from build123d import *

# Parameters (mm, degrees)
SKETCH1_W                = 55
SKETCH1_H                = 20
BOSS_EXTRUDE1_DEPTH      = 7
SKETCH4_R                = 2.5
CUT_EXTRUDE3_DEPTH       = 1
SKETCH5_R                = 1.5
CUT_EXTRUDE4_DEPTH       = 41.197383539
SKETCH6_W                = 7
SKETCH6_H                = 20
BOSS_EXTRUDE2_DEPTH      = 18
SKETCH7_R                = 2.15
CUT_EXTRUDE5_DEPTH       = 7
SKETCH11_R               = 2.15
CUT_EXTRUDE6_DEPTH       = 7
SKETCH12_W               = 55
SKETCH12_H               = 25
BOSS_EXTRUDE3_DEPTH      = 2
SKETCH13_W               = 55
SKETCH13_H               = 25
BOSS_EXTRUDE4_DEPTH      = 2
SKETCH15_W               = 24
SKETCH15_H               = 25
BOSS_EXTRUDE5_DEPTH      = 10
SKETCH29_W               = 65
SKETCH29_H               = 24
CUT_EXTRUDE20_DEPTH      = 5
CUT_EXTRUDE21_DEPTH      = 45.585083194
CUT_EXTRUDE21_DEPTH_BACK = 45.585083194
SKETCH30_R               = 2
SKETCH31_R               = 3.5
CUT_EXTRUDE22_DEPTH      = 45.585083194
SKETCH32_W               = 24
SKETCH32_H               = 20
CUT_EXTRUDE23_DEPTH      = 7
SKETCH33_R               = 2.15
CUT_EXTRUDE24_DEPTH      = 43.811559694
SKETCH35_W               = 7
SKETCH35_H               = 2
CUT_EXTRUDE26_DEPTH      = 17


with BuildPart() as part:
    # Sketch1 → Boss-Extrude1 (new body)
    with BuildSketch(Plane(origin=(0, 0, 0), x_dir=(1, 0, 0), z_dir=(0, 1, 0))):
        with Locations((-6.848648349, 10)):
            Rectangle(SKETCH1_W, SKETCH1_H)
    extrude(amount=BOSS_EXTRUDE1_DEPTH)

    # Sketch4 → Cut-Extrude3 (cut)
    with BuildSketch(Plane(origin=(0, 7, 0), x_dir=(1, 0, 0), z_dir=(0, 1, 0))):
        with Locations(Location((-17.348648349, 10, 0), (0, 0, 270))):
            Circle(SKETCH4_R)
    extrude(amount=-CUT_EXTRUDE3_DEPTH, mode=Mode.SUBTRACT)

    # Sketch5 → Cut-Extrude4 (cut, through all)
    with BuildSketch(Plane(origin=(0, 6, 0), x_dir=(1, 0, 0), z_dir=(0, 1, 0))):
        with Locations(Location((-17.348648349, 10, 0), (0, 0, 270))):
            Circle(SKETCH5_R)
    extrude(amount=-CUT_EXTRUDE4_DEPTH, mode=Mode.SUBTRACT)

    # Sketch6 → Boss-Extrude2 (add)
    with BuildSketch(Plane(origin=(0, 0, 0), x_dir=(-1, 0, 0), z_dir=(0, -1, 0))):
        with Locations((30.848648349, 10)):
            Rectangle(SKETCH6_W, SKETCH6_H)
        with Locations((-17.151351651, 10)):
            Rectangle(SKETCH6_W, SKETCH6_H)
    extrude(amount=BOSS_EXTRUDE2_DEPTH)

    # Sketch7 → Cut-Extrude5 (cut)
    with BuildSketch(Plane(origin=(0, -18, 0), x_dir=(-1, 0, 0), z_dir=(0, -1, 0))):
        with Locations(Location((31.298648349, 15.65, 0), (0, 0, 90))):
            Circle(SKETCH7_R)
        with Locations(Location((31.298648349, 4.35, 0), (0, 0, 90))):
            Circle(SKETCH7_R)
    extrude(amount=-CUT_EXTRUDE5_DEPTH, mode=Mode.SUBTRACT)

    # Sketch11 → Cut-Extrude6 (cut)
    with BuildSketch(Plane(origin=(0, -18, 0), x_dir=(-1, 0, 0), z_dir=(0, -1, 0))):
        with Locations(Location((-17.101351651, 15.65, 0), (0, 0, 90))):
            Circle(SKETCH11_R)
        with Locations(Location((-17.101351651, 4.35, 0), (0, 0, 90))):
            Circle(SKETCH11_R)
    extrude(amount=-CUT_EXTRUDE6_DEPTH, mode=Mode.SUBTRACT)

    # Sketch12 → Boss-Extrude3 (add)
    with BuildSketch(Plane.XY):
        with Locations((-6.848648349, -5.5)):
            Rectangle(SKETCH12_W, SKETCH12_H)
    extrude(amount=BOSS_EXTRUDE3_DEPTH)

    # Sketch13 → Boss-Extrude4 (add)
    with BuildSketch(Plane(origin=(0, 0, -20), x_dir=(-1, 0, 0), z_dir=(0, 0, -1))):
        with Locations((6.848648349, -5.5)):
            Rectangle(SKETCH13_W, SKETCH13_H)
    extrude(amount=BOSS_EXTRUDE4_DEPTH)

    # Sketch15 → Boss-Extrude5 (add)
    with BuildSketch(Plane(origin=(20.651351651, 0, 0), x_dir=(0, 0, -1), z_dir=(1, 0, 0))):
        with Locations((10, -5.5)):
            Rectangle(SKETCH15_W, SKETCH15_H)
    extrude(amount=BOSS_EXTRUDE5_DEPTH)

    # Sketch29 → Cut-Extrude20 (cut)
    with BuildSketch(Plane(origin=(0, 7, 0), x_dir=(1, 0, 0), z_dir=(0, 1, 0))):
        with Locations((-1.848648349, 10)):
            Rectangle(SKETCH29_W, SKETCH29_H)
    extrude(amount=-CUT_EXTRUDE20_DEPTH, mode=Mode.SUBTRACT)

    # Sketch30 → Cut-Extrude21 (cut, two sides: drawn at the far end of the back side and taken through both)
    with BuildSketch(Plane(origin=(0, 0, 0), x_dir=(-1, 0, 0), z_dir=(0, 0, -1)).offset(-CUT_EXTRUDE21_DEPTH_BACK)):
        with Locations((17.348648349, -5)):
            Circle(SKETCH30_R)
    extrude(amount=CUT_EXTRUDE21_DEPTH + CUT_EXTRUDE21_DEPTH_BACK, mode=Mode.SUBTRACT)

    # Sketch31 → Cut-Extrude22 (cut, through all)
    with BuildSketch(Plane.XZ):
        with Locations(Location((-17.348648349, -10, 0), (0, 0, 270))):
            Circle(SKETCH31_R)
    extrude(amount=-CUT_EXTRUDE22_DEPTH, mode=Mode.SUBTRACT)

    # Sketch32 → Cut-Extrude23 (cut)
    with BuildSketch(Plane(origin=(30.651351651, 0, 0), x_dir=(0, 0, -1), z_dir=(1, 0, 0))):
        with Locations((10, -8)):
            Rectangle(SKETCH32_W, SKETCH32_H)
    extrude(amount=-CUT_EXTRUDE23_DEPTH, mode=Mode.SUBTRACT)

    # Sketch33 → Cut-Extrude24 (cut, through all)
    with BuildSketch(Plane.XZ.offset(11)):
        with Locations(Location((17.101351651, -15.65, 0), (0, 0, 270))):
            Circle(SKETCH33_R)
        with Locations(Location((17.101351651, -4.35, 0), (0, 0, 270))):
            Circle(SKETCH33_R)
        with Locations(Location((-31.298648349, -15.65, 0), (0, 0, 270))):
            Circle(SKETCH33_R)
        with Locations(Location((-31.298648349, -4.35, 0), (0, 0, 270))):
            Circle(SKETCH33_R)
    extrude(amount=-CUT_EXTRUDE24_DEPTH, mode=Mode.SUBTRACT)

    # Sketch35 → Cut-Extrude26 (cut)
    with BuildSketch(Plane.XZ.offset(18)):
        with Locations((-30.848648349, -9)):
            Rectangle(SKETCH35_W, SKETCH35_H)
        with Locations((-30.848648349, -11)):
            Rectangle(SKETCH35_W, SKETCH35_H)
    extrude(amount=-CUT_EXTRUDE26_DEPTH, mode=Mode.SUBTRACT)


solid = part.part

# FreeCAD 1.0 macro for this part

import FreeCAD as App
import Part
import Sketcher
from FreeCAD import Vector
Q = App.Units.Quantity

doc = App.newDocument("Part")
params = doc.addObject("Spreadsheet::Sheet", "Params")
for row, (alias, value) in enumerate([
    ("sketch1_width", "55 mm"),
    ("sketch1_height", "20 mm"),
    ("pad1_length", "7 mm"),
    ("sketch2_diameter", "5 mm"),
    ("pocket1_length", "1 mm"),
    ("sketch3_diameter", "3 mm"),
    ("sketch4_width", "7 mm"),
    ("sketch4_height", "20 mm"),
    ("pad2_length", "18 mm"),
    ("sketch5_diameter", "4.3 mm"),
    ("pocket3_length", "7 mm"),
    ("sketch6_diameter", "4.3 mm"),
    ("pocket4_length", "7 mm"),
    ("sketch7_width", "55 mm"),
    ("sketch7_height", "25 mm"),
    ("pad3_length", "2 mm"),
    ("sketch8_width", "55 mm"),
    ("sketch8_height", "25 mm"),
    ("pad4_length", "2 mm"),
    ("sketch9_width", "25 mm"),
    ("sketch9_height", "24 mm"),
    ("pad5_length", "10 mm"),
    ("sketch10_width", "65 mm"),
    ("sketch10_height", "24 mm"),
    ("pocket5_length", "5 mm"),
    ("sketch11_diameter", "4 mm"),
    ("sketch12_diameter", "7 mm"),
    ("sketch13_width", "20 mm"),
    ("sketch13_height", "24 mm"),
    ("pocket8_length", "7 mm"),
    ("sketch14_diameter", "4.3 mm"),
    ("sketch15_width", "7 mm"),
    ("sketch15_height", "4 mm"),
    ("pocket10_length", "17 mm"),
], start=1):
    params.set(f"A{row}", alias)
    params.set(f"B{row}", "=" + value)
    params.setAlias(f"B{row}", alias)

body = doc.addObject("PartDesign::Body", "Body")

# Sketch on XZ plane
sketch1 = body.newObject("Sketcher::SketchObject", "Sketch")
sketch1.AttachmentSupport = (doc.getObject("XZ_Plane"), [""])
sketch1.MapMode = "FlatFace"
sketch1.addGeometry([
    Part.LineSegment(Vector(-34, -20, 0), Vector(-34, 0, 0)),
    Part.LineSegment(Vector(-34, 0, 0), Vector(21, 0, 0)),
    Part.LineSegment(Vector(21, 0, 0), Vector(21, -20, 0)),
    Part.LineSegment(Vector(21, -20, 0), Vector(-34, -20, 0)),
], False)
sketch1.addConstraint([
    Sketcher.Constraint("Coincident", 0, 2, 1, 1),
    Sketcher.Constraint("Coincident", 1, 2, 2, 1),
    Sketcher.Constraint("Coincident", 2, 2, 3, 1),
    Sketcher.Constraint("Coincident", 3, 2, 0, 1),
    Sketcher.Constraint("Vertical", 0),
    Sketcher.Constraint("Horizontal", 1),
    Sketcher.Constraint("Vertical", 2),
    Sketcher.Constraint("Horizontal", 3),
    Sketcher.Constraint("PointOnObject", 0, 2, -1),
    Sketcher.Constraint("DistanceX", 1, 1, 1, 2, Q("55 mm")),
    Sketcher.Constraint("DistanceY", 0, 1, 0, 2, Q("20 mm")),
    Sketcher.Constraint("DistanceX", 0, 2, -1, 1, Q("34.348648 mm")),
])
sketch1.setExpression("Constraints[9]", "Params.sketch1_width")
sketch1.setExpression("Constraints[10]", "Params.sketch1_height")
pad1 = body.newObject("PartDesign::Pad", "Pad")
pad1.Profile = sketch1
pad1.setExpression("Length", "Params.pad1_length")
pad1.Reversed = True

# Sketch on XZ plane
sketch2 = body.newObject("Sketcher::SketchObject", "Sketch001")
sketch2.AttachmentSupport = (doc.getObject("XZ_Plane"), [""])
sketch2.MapMode = "FlatFace"
sketch2.AttachmentOffset = App.Placement(Vector(0, 0, -7), App.Rotation())
sketch2.addGeometry(Part.Circle(Vector(-17.3, -10, 0), Vector(0, 0, 1), 2.5), False)
sketch2.addConstraint([
    Sketcher.Constraint("Diameter", 0, Q("5 mm")),
    Sketcher.Constraint("DistanceY", 0, 3, -1, 1, Q("10 mm")),
    Sketcher.Constraint("DistanceX", 0, 3, -1, 1, Q("17.348648 mm")),
])
sketch2.setExpression("Constraints[0]", "Params.sketch2_diameter")
pocket1 = body.newObject("PartDesign::Pocket", "Pocket")
pocket1.Profile = sketch2
pocket1.setExpression("Length", "Params.pocket1_length")
pocket1.Reversed = True

# Sketch on XZ plane
sketch3 = body.newObject("Sketcher::SketchObject", "Sketch002")
sketch3.AttachmentSupport = (doc.getObject("XZ_Plane"), [""])
sketch3.MapMode = "FlatFace"
sketch3.AttachmentOffset = App.Placement(Vector(0, 0, -6), App.Rotation())
sketch3.addGeometry(Part.Circle(Vector(-17.3, -10, 0), Vector(0, 0, 1), 1.5), False)
sketch3.addConstraint([
    Sketcher.Constraint("Diameter", 0, Q("3 mm")),
    Sketcher.Constraint("DistanceY", 0, 3, -1, 1, Q("10 mm")),
    Sketcher.Constraint("DistanceX", 0, 3, -1, 1, Q("17.348648 mm")),
])
sketch3.setExpression("Constraints[0]", "Params.sketch3_diameter")
pocket2 = body.newObject("PartDesign::Pocket", "Pocket001")
pocket2.Profile = sketch3
pocket2.Type = "ThroughAll"
pocket2.Reversed = True

# Sketch on XZ plane
sketch4 = body.newObject("Sketcher::SketchObject", "Sketch003")
sketch4.AttachmentSupport = (doc.getObject("XZ_Plane"), [""])
sketch4.MapMode = "FlatFace"
sketch4.addGeometry([
    Part.LineSegment(Vector(-27, -20, 0), Vector(-27, 0, 0)),  # 0
    Part.LineSegment(Vector(-27, 0, 0), Vector(-34, 0, 0)),  # 1
    Part.LineSegment(Vector(-34, 0, 0), Vector(-34, -20, 0)),  # 2
    Part.LineSegment(Vector(-34, -20, 0), Vector(-27, -20, 0)),  # 3
    Part.LineSegment(Vector(21, -20, 0), Vector(21, 0, 0)),  # 4
    Part.LineSegment(Vector(21, 0, 0), Vector(14, 0, 0)),  # 5
    Part.LineSegment(Vector(14, 0, 0), Vector(14, -20, 0)),  # 6
    Part.LineSegment(Vector(14, -20, 0), Vector(21, -20, 0)),  # 7
], False)
sketch4.addConstraint([
    Sketcher.Constraint("Coincident", 0, 2, 1, 1),
    Sketcher.Constraint("Coincident", 1, 2, 2, 1),
    Sketcher.Constraint("Coincident", 2, 2, 3, 1),
    Sketcher.Constraint("Coincident", 3, 2, 0, 1),
    Sketcher.Constraint("Coincident", 4, 2, 5, 1),
    Sketcher.Constraint("Coincident", 5, 2, 6, 1),
    Sketcher.Constraint("Coincident", 6, 2, 7, 1),
    Sketcher.Constraint("Coincident", 7, 2, 4, 1),
    Sketcher.Constraint("Vertical", 0),
    Sketcher.Constraint("Horizontal", 1),
    Sketcher.Constraint("Vertical", 2),
    Sketcher.Constraint("Horizontal", 3),
    Sketcher.Constraint("Vertical", 4),
    Sketcher.Constraint("Horizontal", 5),
    Sketcher.Constraint("Vertical", 6),
    Sketcher.Constraint("Horizontal", 7),
    Sketcher.Constraint("PointOnObject", 0, 2, -1),
    Sketcher.Constraint("PointOnObject", 4, 2, -1),
    Sketcher.Constraint("Horizontal", 3, 2, 6, 2),
    Sketcher.Constraint("Equal", 3, 5),
    Sketcher.Constraint("DistanceX", 1, 2, 1, 1, Q("7 mm")),
    Sketcher.Constraint("DistanceY", 0, 1, 0, 2, Q("20 mm")),
    Sketcher.Constraint("DistanceX", 0, 2, 4, 2, Q("48 mm")),
    Sketcher.Constraint("DistanceX", 0, 2, -1, 1, Q("27.348648 mm")),
])
sketch4.setExpression("Constraints[20]", "Params.sketch4_width")
sketch4.setExpression("Constraints[21]", "Params.sketch4_height")
pad2 = body.newObject("PartDesign::Pad", "Pad001")
pad2.Profile = sketch4
pad2.setExpression("Length", "Params.pad2_length")

# Sketch on XZ plane
sketch5 = body.newObject("Sketcher::SketchObject", "Sketch004")
sketch5.AttachmentSupport = (doc.getObject("XZ_Plane"), [""])
sketch5.MapMode = "FlatFace"
sketch5.AttachmentOffset = App.Placement(Vector(0, 0, 18), App.Rotation())
sketch5.addGeometry([
    Part.Circle(Vector(-31.3, -15.7, 0), Vector(0, 0, 1), 2.1),
    Part.Circle(Vector(-31.3, -4.3, 0), Vector(0, 0, 1), 2.1),
], False)
sketch5.addConstraint([
    Sketcher.Constraint("Equal", 0, 1),
    Sketcher.Constraint("Vertical", 0, 3, 1, 3),
    Sketcher.Constraint("Diameter", 0, Q("4.3 mm")),
    Sketcher.Constraint("DistanceY", 0, 3, 1, 3, Q("11.3 mm")),
    Sketcher.Constraint("DistanceY", 0, 3, -1, 1, Q("15.65 mm")),
    Sketcher.Constraint("DistanceX", 0, 3, -1, 1, Q("31.298648 mm")),
])
sketch5.setExpression("Constraints[2]", "Params.sketch5_diameter")
pocket3 = body.newObject("PartDesign::Pocket", "Pocket002")
pocket3.Profile = sketch5
pocket3.setExpression("Length", "Params.pocket3_length")

# Sketch on XZ plane
sketch6 = body.newObject("Sketcher::SketchObject", "Sketch005")
sketch6.AttachmentSupport = (doc.getObject("XZ_Plane"), [""])
sketch6.MapMode = "FlatFace"
sketch6.AttachmentOffset = App.Placement(Vector(0, 0, 18), App.Rotation())
sketch6.addGeometry([
    Part.Circle(Vector(17.1, -15.7, 0), Vector(0, 0, 1), 2.1),
    Part.Circle(Vector(17.1, -4.3, 0), Vector(0, 0, 1), 2.1),
], False)
sketch6.addConstraint([
    Sketcher.Constraint("Equal", 0, 1),
    Sketcher.Constraint("Vertical", 0, 3, 1, 3),
    Sketcher.Constraint("Diameter", 0, Q("4.3 mm")),
    Sketcher.Constraint("DistanceY", 0, 3, 1, 3, Q("11.3 mm")),
    Sketcher.Constraint("DistanceY", 0, 3, -1, 1, Q("15.65 mm")),
    Sketcher.Constraint("DistanceX", -1, 1, 0, 3, Q("17.101352 mm")),
])
sketch6.setExpression("Constraints[2]", "Params.sketch6_diameter")
pocket4 = body.newObject("PartDesign::Pocket", "Pocket003")
pocket4.Profile = sketch6
pocket4.setExpression("Length", "Params.pocket4_length")

# Sketch on XY plane
sketch7 = body.newObject("Sketcher::SketchObject", "Sketch006")
sketch7.AttachmentSupport = (doc.getObject("XY_Plane"), [""])
sketch7.MapMode = "FlatFace"
sketch7.addGeometry([
    Part.LineSegment(Vector(-34, 7, 0), Vector(-34, -18, 0)),
    Part.LineSegment(Vector(-34, -18, 0), Vector(21, -18, 0)),
    Part.LineSegment(Vector(21, -18, 0), Vector(21, 7, 0)),
    Part.LineSegment(Vector(21, 7, 0), Vector(-34, 7, 0)),
], False)
sketch7.addConstraint([
    Sketcher.Constraint("Coincident", 0, 2, 1, 1),
    Sketcher.Constraint("Coincident", 1, 2, 2, 1),
    Sketcher.Constraint("Coincident", 2, 2, 3, 1),
    Sketcher.Constraint("Coincident", 3, 2, 0, 1),
    Sketcher.Constraint("Vertical", 0),
    Sketcher.Constraint("Horizontal", 1),
    Sketcher.Constraint("Vertical", 2),
    Sketcher.Constraint("Horizontal", 3),
    Sketcher.Constraint("DistanceX", 1, 1, 1, 2, Q("55 mm")),
    Sketcher.Constraint("DistanceY", 0, 2, 0, 1, Q("25 mm")),
    Sketcher.Constraint("DistanceY", 0, 2, -1, 1, Q("18 mm")),
    Sketcher.Constraint("DistanceX", 0, 2, -1, 1, Q("34.348648 mm")),
])
sketch7.setExpression("Constraints[8]", "Params.sketch7_width")
sketch7.setExpression("Constraints[9]", "Params.sketch7_height")
pad3 = body.newObject("PartDesign::Pad", "Pad002")
pad3.Profile = sketch7
pad3.setExpression("Length", "Params.pad3_length")

# Sketch on XY plane
sketch8 = body.newObject("Sketcher::SketchObject", "Sketch007")
sketch8.AttachmentSupport = (doc.getObject("XY_Plane"), [""])
sketch8.MapMode = "FlatFace"
sketch8.AttachmentOffset = App.Placement(Vector(0, 0, -20), App.Rotation())
sketch8.addGeometry([
    Part.LineSegment(Vector(21, 7, 0), Vector(21, -18, 0)),
    Part.LineSegment(Vector(21, -18, 0), Vector(-34, -18, 0)),
    Part.LineSegment(Vector(-34, -18, 0), Vector(-34, 7, 0)),
    Part.LineSegment(Vector(-34, 7, 0), Vector(21, 7, 0)),
], False)
sketch8.addConstraint([
    Sketcher.Constraint("Coincident", 0, 2, 1, 1),
    Sketcher.Constraint("Coincident", 1, 2, 2, 1),
    Sketcher.Constraint("Coincident", 2, 2, 3, 1),
    Sketcher.Constraint("Coincident", 3, 2, 0, 1),
    Sketcher.Constraint("Vertical", 0),
    Sketcher.Constraint("Horizontal", 1),
    Sketcher.Constraint("Vertical", 2),
    Sketcher.Constraint("Horizontal", 3),
    Sketcher.Constraint("DistanceX", 1, 2, 1, 1, Q("55 mm")),
    Sketcher.Constraint("DistanceY", 0, 2, 0, 1, Q("25 mm")),
    Sketcher.Constraint("DistanceY", 0, 2, -1, 1, Q("18 mm")),
    Sketcher.Constraint("DistanceX", -1, 1, 0, 2, Q("20.651352 mm")),
])
sketch8.setExpression("Constraints[8]", "Params.sketch8_width")
sketch8.setExpression("Constraints[9]", "Params.sketch8_height")
pad4 = body.newObject("PartDesign::Pad", "Pad003")
pad4.Profile = sketch8
pad4.setExpression("Length", "Params.pad4_length")
pad4.Reversed = True

# Sketch on YZ plane
sketch9 = body.newObject("Sketcher::SketchObject", "Sketch008")
sketch9.AttachmentSupport = (doc.getObject("YZ_Plane"), [""])
sketch9.MapMode = "FlatFace"
sketch9.AttachmentOffset = App.Placement(Vector(0, 0, 20.651352), App.Rotation())
sketch9.addGeometry([
    Part.LineSegment(Vector(7, 2, 0), Vector(-18, 2, 0)),
    Part.LineSegment(Vector(-18, 2, 0), Vector(-18, -22, 0)),
    Part.LineSegment(Vector(-18, -22, 0), Vector(7, -22, 0)),
    Part.LineSegment(Vector(7, -22, 0), Vector(7, 2, 0)),
], False)
sketch9.addConstraint([
    Sketcher.Constraint("Coincident", 0, 2, 1, 1),
    Sketcher.Constraint("Coincident", 1, 2, 2, 1),
    Sketcher.Constraint("Coincident", 2, 2, 3, 1),
    Sketcher.Constraint("Coincident", 3, 2, 0, 1),
    Sketcher.Constraint("Horizontal", 0),
    Sketcher.Constraint("Vertical", 1),
    Sketcher.Constraint("Horizontal", 2),
    Sketcher.Constraint("Vertical", 3),
    Sketcher.Constraint("DistanceX", 0, 2, 0, 1, Q("25 mm")),
    Sketcher.Constraint("DistanceY", 1, 2, 1, 1, Q("24 mm")),
    Sketcher.Constraint("DistanceX", 0, 2, -1, 1, Q("18 mm")),
    Sketcher.Constraint("DistanceY", -1, 1, 0, 2, Q("2 mm")),
])
sketch9.setExpression("Constraints[8]", "Params.sketch9_width")
sketch9.setExpression("Constraints[9]", "Params.sketch9_height")
pad5 = body.newObject("PartDesign::Pad", "Pad004")
pad5.Profile = sketch9
pad5.setExpression("Length", "Params.pad5_length")

# Sketch on XZ plane
sketch10 = body.newObject("Sketcher::SketchObject", "Sketch009")
sketch10.AttachmentSupport = (doc.getObject("XZ_Plane"), [""])
sketch10.MapMode = "FlatFace"
sketch10.AttachmentOffset = App.Placement(Vector(0, 0, -7), App.Rotation())
sketch10.addGeometry([
    Part.LineSegment(Vector(-34, -22, 0), Vector(-34, 2, 0)),
    Part.LineSegment(Vector(-34, 2, 0), Vector(31, 2, 0)),
    Part.LineSegment(Vector(31, 2, 0), Vector(31, -22, 0)),
    Part.LineSegment(Vector(31, -22, 0), Vector(-34, -22, 0)),
], False)
sketch10.addConstraint([
    Sketcher.Constraint("Coincident", 0, 2, 1, 1),
    Sketcher.Constraint("Coincident", 1, 2, 2, 1),
    Sketcher.Constraint("Coincident", 2, 2, 3, 1),
    Sketcher.Constraint("Coincident", 3, 2, 0, 1),
    Sketcher.Constraint("Vertical", 0),
    Sketcher.Constraint("Horizontal", 1),
    Sketcher.Constraint("Vertical", 2),
    Sketcher.Constraint("Horizontal", 3),
    Sketcher.Constraint("DistanceX", 1, 1, 1, 2, Q("65 mm")),
    Sketcher.Constraint("DistanceY", 0, 1, 0, 2, Q("24 mm")),
    Sketcher.Constraint("DistanceY", -1, 1, 0, 2, Q("2 mm")),
    Sketcher.Constraint("DistanceX", 0, 2, -1, 1, Q("34.348648 mm")),
])
sketch10.setExpression("Constraints[8]", "Params.sketch10_width")
sketch10.setExpression("Constraints[9]", "Params.sketch10_height")
pocket5 = body.newObject("PartDesign::Pocket", "Pocket004")
pocket5.Profile = sketch10
pocket5.setExpression("Length", "Params.pocket5_length")
pocket5.Reversed = True

# Sketch on XY plane
sketch11 = body.newObject("Sketcher::SketchObject", "Sketch010")
sketch11.AttachmentSupport = (doc.getObject("XY_Plane"), [""])
sketch11.MapMode = "FlatFace"
sketch11.addGeometry(Part.Circle(Vector(-17.3, -5, 0), Vector(0, 0, 1), 2), False)
sketch11.addConstraint([
    Sketcher.Constraint("Diameter", 0, Q("4 mm")),
    Sketcher.Constraint("DistanceY", 0, 3, -1, 1, Q("5 mm")),
    Sketcher.Constraint("DistanceX", 0, 3, -1, 1, Q("17.348648 mm")),
])
sketch11.setExpression("Constraints[0]", "Params.sketch11_diameter")
pocket6 = body.newObject("PartDesign::Pocket", "Pocket005")
pocket6.Profile = sketch11
pocket6.Type = "ThroughAll"
pocket6.Midplane = True

# Sketch on XZ plane
sketch12 = body.newObject("Sketcher::SketchObject", "Sketch011")
sketch12.AttachmentSupport = (doc.getObject("XZ_Plane"), [""])
sketch12.MapMode = "FlatFace"
sketch12.addGeometry(Part.Circle(Vector(-17.3, -10, 0), Vector(0, 0, 1), 3.5), False)
sketch12.addConstraint([
    Sketcher.Constraint("Diameter", 0, Q("7 mm")),
    Sketcher.Constraint("DistanceY", 0, 3, -1, 1, Q("10 mm")),
    Sketcher.Constraint("DistanceX", 0, 3, -1, 1, Q("17.348648 mm")),
])
sketch12.setExpression("Constraints[0]", "Params.sketch12_diameter")
pocket7 = body.newObject("PartDesign::Pocket", "Pocket006")
pocket7.Profile = sketch12
pocket7.Type = "ThroughAll"

# Sketch on YZ plane
sketch13 = body.newObject("Sketcher::SketchObject", "Sketch012")
sketch13.AttachmentSupport = (doc.getObject("YZ_Plane"), [""])
sketch13.MapMode = "FlatFace"
sketch13.AttachmentOffset = App.Placement(Vector(0, 0, 30.651352), App.Rotation())
sketch13.addGeometry([
    Part.LineSegment(Vector(2, 2, 0), Vector(-18, 2, 0)),
    Part.LineSegment(Vector(-18, 2, 0), Vector(-18, -22, 0)),
    Part.LineSegment(Vector(-18, -22, 0), Vector(2, -22, 0)),
    Part.LineSegment(Vector(2, -22, 0), Vector(2, 2, 0)),
], False)
sketch13.addConstraint([
    Sketcher.Constraint("Coincident", 0, 2, 1, 1),
    Sketcher.Constraint("Coincident", 1, 2, 2, 1),
    Sketcher.Constraint("Coincident", 2, 2, 3, 1),
    Sketcher.Constraint("Coincident", 3, 2, 0, 1),
    Sketcher.Constraint("Horizontal", 0),
    Sketcher.Constraint("Vertical", 1),
    Sketcher.Constraint("Horizontal", 2),
    Sketcher.Constraint("Vertical", 3),
    Sketcher.Constraint("DistanceX", 0, 2, 0, 1, Q("20 mm")),
    Sketcher.Constraint("DistanceY", 1, 2, 1, 1, Q("24 mm")),
    Sketcher.Constraint("DistanceX", 0, 2, -1, 1, Q("18 mm")),
    Sketcher.Constraint("DistanceY", -1, 1, 0, 2, Q("2 mm")),
])
sketch13.setExpression("Constraints[8]", "Params.sketch13_width")
sketch13.setExpression("Constraints[9]", "Params.sketch13_height")
pocket8 = body.newObject("PartDesign::Pocket", "Pocket007")
pocket8.Profile = sketch13
pocket8.setExpression("Length", "Params.pocket8_length")

# Sketch on XZ plane
sketch14 = body.newObject("Sketcher::SketchObject", "Sketch013")
sketch14.AttachmentSupport = (doc.getObject("XZ_Plane"), [""])
sketch14.MapMode = "FlatFace"
sketch14.AttachmentOffset = App.Placement(Vector(0, 0, 11), App.Rotation())
sketch14.addGeometry([
    Part.Circle(Vector(17.1, -15.7, 0), Vector(0, 0, 1), 2.1),
    Part.Circle(Vector(17.1, -4.3, 0), Vector(0, 0, 1), 2.1),
    Part.Circle(Vector(-31.3, -15.7, 0), Vector(0, 0, 1), 2.1),
    Part.Circle(Vector(-31.3, -4.3, 0), Vector(0, 0, 1), 2.1),
], False)
sketch14.addConstraint([
    Sketcher.Constraint("Equal", 0, 1),
    Sketcher.Constraint("Equal", 1, 2),
    Sketcher.Constraint("Equal", 2, 3),
    Sketcher.Constraint("Horizontal", 0, 3, 2, 3),
    Sketcher.Constraint("Horizontal", 1, 3, 3, 3),
    Sketcher.Constraint("Vertical", 0, 3, 1, 3),
    Sketcher.Constraint("Vertical", 2, 3, 3, 3),
    Sketcher.Constraint("Diameter", 0, Q("4.3 mm")),
    Sketcher.Constraint("DistanceY", 0, 3, 1, 3, Q("11.3 mm")),
    Sketcher.Constraint("DistanceX", 2, 3, 0, 3, Q("48.4 mm")),
    Sketcher.Constraint("DistanceY", 0, 3, -1, 1, Q("15.65 mm")),
    Sketcher.Constraint("DistanceX", -1, 1, 0, 3, Q("17.101352 mm")),
])
sketch14.setExpression("Constraints[7]", "Params.sketch14_diameter")
pocket9 = body.newObject("PartDesign::Pocket", "Pocket008")
pocket9.Profile = sketch14
pocket9.Type = "ThroughAll"

# Sketch on XZ plane
sketch15 = body.newObject("Sketcher::SketchObject", "Sketch014")
sketch15.AttachmentSupport = (doc.getObject("XZ_Plane"), [""])
sketch15.MapMode = "FlatFace"
sketch15.AttachmentOffset = App.Placement(Vector(0, 0, 18), App.Rotation())
sketch15.addGeometry([
    Part.LineSegment(Vector(-34.3, -8, 0), Vector(-34.3, -12, 0)),
    Part.LineSegment(Vector(-34.3, -12, 0), Vector(-27.3, -12, 0)),
    Part.LineSegment(Vector(-27.3, -12, 0), Vector(-27.3, -8, 0)),
    Part.LineSegment(Vector(-27.3, -8, 0), Vector(-34.3, -8, 0)),
], False)
sketch15.addConstraint([
    Sketcher.Constraint("Coincident", 0, 2, 1, 1),
    Sketcher.Constraint("Coincident", 1, 2, 2, 1),
    Sketcher.Constraint("Coincident", 2, 2, 3, 1),
    Sketcher.Constraint("Coincident", 3, 2, 0, 1),
    Sketcher.Constraint("Vertical", 0),
    Sketcher.Constraint("Horizontal", 1),
    Sketcher.Constraint("Vertical", 2),
    Sketcher.Constraint("Horizontal", 3),
    Sketcher.Constraint("DistanceX", 1, 1, 1, 2, Q("7 mm")),
    Sketcher.Constraint("DistanceY", 0, 2, 0, 1, Q("4 mm")),
    Sketcher.Constraint("DistanceY", 0, 2, -1, 1, Q("12 mm")),
    Sketcher.Constraint("DistanceX", 0, 2, -1, 1, Q("34.348648 mm")),
])
sketch15.setExpression("Constraints[8]", "Params.sketch15_width")
sketch15.setExpression("Constraints[9]", "Params.sketch15_height")
pocket10 = body.newObject("PartDesign::Pocket", "Pocket009")
pocket10.Profile = sketch15
pocket10.setExpression("Length", "Params.pocket10_length")

doc.recompute()
